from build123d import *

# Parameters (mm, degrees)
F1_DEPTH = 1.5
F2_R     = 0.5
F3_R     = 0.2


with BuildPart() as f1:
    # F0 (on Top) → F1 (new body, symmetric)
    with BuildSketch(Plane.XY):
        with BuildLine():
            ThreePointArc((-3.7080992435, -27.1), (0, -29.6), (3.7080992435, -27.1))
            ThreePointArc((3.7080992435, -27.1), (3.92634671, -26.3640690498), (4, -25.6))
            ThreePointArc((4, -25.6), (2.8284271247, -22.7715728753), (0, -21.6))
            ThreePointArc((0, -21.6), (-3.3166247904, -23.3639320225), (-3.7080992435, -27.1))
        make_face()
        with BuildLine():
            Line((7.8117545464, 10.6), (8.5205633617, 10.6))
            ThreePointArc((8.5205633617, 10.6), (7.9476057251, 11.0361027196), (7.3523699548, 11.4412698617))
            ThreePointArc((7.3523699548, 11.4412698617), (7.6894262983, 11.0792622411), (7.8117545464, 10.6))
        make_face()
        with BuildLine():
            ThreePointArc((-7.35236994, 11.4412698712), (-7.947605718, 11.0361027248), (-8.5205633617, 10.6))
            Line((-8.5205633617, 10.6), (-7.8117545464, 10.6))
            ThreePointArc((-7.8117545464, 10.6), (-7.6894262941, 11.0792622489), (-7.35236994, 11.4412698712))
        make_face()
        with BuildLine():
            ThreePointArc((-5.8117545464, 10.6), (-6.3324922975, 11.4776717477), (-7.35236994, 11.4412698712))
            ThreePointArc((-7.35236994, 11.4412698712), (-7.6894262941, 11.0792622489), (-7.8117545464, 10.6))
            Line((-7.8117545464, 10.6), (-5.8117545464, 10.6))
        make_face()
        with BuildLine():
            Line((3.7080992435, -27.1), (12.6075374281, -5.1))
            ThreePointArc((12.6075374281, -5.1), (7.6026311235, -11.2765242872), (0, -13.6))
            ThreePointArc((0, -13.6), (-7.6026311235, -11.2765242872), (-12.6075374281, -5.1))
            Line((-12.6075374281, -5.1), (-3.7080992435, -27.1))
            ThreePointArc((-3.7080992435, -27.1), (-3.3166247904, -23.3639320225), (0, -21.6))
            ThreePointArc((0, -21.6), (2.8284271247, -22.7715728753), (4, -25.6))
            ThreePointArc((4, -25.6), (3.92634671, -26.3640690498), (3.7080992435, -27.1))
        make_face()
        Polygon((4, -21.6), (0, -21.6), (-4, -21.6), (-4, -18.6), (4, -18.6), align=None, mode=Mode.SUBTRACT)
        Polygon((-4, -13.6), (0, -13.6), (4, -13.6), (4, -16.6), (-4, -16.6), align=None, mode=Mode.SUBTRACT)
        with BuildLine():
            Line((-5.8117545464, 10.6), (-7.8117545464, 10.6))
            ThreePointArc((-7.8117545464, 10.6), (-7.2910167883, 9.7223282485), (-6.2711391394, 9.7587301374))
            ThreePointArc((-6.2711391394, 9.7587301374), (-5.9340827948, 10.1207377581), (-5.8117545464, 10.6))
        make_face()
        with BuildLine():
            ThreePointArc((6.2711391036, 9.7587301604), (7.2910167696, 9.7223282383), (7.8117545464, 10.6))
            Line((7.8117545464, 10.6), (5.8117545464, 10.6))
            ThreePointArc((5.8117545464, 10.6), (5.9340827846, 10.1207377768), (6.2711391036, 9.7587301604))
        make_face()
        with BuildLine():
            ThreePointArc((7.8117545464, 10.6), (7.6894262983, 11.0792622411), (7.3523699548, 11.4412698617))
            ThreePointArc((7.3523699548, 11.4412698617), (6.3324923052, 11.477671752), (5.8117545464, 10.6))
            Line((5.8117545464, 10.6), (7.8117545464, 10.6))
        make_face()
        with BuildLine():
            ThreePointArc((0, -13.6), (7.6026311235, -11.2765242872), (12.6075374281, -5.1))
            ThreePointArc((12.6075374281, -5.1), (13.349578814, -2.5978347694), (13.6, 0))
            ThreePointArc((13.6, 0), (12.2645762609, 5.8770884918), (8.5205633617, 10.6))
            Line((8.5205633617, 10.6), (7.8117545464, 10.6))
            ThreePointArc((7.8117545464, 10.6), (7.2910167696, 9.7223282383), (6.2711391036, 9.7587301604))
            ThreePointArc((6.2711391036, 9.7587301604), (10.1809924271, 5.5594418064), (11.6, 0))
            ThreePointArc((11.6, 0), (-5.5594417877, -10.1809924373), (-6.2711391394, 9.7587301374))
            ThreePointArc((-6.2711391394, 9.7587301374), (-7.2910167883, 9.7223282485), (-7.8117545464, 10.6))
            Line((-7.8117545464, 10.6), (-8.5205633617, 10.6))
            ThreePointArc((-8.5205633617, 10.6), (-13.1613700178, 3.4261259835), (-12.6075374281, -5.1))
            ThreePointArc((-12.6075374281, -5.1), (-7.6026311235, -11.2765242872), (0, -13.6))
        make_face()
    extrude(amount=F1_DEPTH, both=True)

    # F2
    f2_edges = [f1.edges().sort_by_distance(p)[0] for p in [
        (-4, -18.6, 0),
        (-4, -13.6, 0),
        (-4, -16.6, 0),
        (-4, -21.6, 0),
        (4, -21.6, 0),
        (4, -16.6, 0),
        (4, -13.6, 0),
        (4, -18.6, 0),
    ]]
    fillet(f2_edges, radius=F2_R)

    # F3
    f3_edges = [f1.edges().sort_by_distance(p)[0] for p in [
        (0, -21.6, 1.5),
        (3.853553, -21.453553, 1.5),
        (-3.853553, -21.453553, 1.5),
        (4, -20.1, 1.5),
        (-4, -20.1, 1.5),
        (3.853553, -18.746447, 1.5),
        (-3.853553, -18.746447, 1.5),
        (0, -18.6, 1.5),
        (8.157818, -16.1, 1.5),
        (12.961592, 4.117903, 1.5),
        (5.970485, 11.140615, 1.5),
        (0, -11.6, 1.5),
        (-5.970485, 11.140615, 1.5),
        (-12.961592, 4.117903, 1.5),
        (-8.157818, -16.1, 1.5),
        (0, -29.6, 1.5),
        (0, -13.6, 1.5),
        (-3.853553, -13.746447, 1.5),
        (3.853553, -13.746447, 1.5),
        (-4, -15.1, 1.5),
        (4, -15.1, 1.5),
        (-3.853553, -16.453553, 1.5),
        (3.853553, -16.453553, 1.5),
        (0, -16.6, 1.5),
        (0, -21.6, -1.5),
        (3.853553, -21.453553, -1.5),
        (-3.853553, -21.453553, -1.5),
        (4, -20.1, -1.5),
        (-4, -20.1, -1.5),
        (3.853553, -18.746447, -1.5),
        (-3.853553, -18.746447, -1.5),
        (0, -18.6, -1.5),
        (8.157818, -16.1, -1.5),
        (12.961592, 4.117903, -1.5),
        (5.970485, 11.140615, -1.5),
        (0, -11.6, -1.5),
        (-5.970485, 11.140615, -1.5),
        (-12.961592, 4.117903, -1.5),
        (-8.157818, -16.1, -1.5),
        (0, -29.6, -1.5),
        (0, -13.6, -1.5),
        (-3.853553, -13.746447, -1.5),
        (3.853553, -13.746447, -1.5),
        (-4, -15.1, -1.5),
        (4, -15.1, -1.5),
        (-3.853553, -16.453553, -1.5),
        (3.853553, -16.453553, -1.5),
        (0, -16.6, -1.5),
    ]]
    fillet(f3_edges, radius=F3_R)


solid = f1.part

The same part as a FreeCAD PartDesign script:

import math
import FreeCAD as App
import Part
import Sketcher
from FreeCAD import Vector
Q = App.Units.Quantity


def edges_at(feature, points):
    """Names of the edges that pass closest to the given points."""
    edges = feature.Shape.Edges
    near = lambda p: min(range(len(edges)), key=lambda i: edges[i].distToShape(Part.Vertex(*p))[0])
    return sorted({f"Edge{near(p) + 1}" for p in points})


def add_polygon(sketch, points):
    """Adds a closed chain of lines whose ends are joined by coincident constraints."""
    first, n = sketch.GeometryCount, len(points)
    for a, b in zip(points, points[1:] + points[:1]):
        sketch.addGeometry(Part.LineSegment(App.Vector(*a, 0), App.Vector(*b, 0)), False)
    for i in range(n):
        sketch.addConstraint(Sketcher.Constraint("Coincident", first + i, 2, first + (i + 1) % n, 1))

doc = App.newDocument("Part")
body = doc.addObject("PartDesign::Body", "Body")

# Sketch on XY plane
sketch1 = body.newObject("Sketcher::SketchObject", "Sketch")
sketch1.AttachmentSupport = (doc.getObject("XY_Plane"), [""])
sketch1.MapMode = "FlatFace"
sketch1.addGeometry(Part.LineSegment(Vector(3.7, -27.1, 0), Vector(12.6, -5.1, 0)), False)  # 0
sketch1.addGeometry(Part.ArcOfCircle(Part.Circle(Vector(0, 0, 0), Vector(0, 0, 1), 13.6), math.radians(-22), math.radians(0)), False)  # 1
sketch1.addGeometry(Part.ArcOfCircle(Part.Circle(Vector(0, 0, 0), Vector(0, 0, 1), 13.6), math.radians(0), math.radians(51)), False)  # 2
sketch1.addGeometry(Part.ArcOfCircle(Part.Circle(Vector(0, 0, 0), Vector(0, 0, 1), 13.6), math.radians(51.21), math.radians(57.27)), False)  # 3
sketch1.addGeometry(Part.ArcOfCircle(Part.Circle(Vector(6.8, 10.6, 0), Vector(0, 0, 1), 1), math.radians(57), math.radians(180)), False)  # 4
sketch1.addGeometry(Part.ArcOfCircle(Part.Circle(Vector(6.8, 10.6, 0), Vector(0, 0, 1), 1), math.radians(180), math.radians(237)), False)  # 5
sketch1.addGeometry(Part.ArcOfCircle(Part.Circle(Vector(0, 0, 0), Vector(0, 0, 1), 11.6), math.radians(0), math.radians(57)), False)  # 6
sketch1.addGeometry(Part.ArcOfCircle(Part.Circle(Vector(0, 0, 0), Vector(0, 0, 1), 11.6), math.radians(123), math.radians(360)), False)  # 7
sketch1.addGeometry(Part.ArcOfCircle(Part.Circle(Vector(-6.8, 10.6, 0), Vector(0, 0, 1), 1), math.radians(-57), math.radians(0)), False)  # 8
sketch1.addGeometry(Part.ArcOfCircle(Part.Circle(Vector(-6.8, 10.6, 0), Vector(0, 0, 1), 1), math.radians(0), math.radians(123)), False)  # 9
sketch1.addGeometry(Part.ArcOfCircle(Part.Circle(Vector(0, 0, 0), Vector(0, 0, 1), 13.6), math.radians(122.73), math.radians(128.79)), False)  # 10
sketch1.addGeometry(Part.ArcOfCircle(Part.Circle(Vector(0, 0, 0), Vector(0, 0, 1), 13.6), math.radians(129), math.radians(202)), False)  # 11
sketch1.addGeometry(Part.LineSegment(Vector(-12.6, -5.1, 0), Vector(-3.7, -27.1, 0)), False)  # 12
sketch1.addGeometry(Part.ArcOfCircle(Part.Circle(Vector(0, -25.6, 0), Vector(0, 0, 1), 4), math.radians(-158), math.radians(-22)), False)  # 13
add_polygon(sketch1, [(4, -18.6), (4, -21.6), (-4, -21.6), (-4, -18.6)])  # lines 14-17
add_polygon(sketch1, [(-4, -13.6), (4, -13.6), (4, -16.6), (-4, -16.6)])  # lines 18-21
sketch1.addConstraint([
    Sketcher.Constraint("Tangent", 0, 2, 1, 1),
    Sketcher.Constraint("Tangent", 1, 2, 2, 1),
    Sketcher.Constraint("Tangent", 2, 2, 3, 1),
    Sketcher.Constraint("Tangent", 3, 2, 4, 1),
    Sketcher.Constraint("Tangent", 4, 2, 5, 1),
    Sketcher.Constraint("Tangent", 5, 2, 6, 2),
    Sketcher.Constraint("Tangent", 6, 1, 7, 2),
    Sketcher.Constraint("Tangent", 7, 1, 8, 1),
    Sketcher.Constraint("Tangent", 8, 2, 9, 1),
    Sketcher.Constraint("Tangent", 9, 2, 10, 1),
    Sketcher.Constraint("Tangent", 10, 2, 11, 1),
    Sketcher.Constraint("Tangent", 11, 2, 12, 1),
    Sketcher.Constraint("Tangent", 12, 2, 13, 1),
    Sketcher.Constraint("Tangent", 13, 2, 0, 1),
    Sketcher.Constraint("Vertical", 14),
    Sketcher.Constraint("Horizontal", 15),
    Sketcher.Constraint("Vertical", 16),
    Sketcher.Constraint("Horizontal", 17),
    Sketcher.Constraint("Horizontal", 18),
    Sketcher.Constraint("Vertical", 19),
    Sketcher.Constraint("Horizontal", 20),
    Sketcher.Constraint("Vertical", 21),
    Sketcher.Constraint("Coincident", 1, 3, -1, 1),
    Sketcher.Constraint("Coincident", 3, 3, -1, 1),
    Sketcher.Constraint("Coincident", 6, 3, -1, 1),
    Sketcher.Constraint("Coincident", 10, 3, -1, 1),
    Sketcher.Constraint("Equal", 4, 5),
    Sketcher.Constraint("Equal", 6, 7),
    Sketcher.Constraint("Equal", 5, 8),
    Sketcher.Constraint("Equal", 8, 9),
    Sketcher.Constraint("Equal", 10, 11),
    Sketcher.Constraint("Symmetric", 4, 2, 8, 2, -2),
    Sketcher.Constraint("PointOnObject", 13, 3, -2),
    Sketcher.Constraint("PointOnObject", 1, 2, -1),
    Sketcher.Constraint("PointOnObject", 6, 1, -1),
    Sketcher.Constraint("Horizontal", 9, 3, 2, 2),
    Sketcher.Constraint("Horizontal", 2, 2, 4, 2),
    Sketcher.Constraint("Horizontal", 8, 2, 10, 2),
    Sketcher.Constraint("Vertical", 17, 2, 18, 2),
    Sketcher.Constraint("Vertical", 16, 2, 20, 2),
    Sketcher.Constraint("Equal", 16, 19),
    Sketcher.Constraint("Radius", 4, Q("1 mm")),
    Sketcher.Constraint("Radius", 13, Q("4 mm")),
    Sketcher.Constraint("Radius", 1, Q("13.6 mm")),
    Sketcher.Constraint("DistanceX", 15, 2, 15, 1, Q("8 mm")),
    Sketcher.Constraint("DistanceY", 14, 2, 14, 1, Q("3 mm")),
    Sketcher.Constraint("DistanceX", -1, 1, 14, 2, Q("4 mm")),
    Sketcher.Constraint("DistanceY", 12, 2, 11, 2, Q("22 mm")),
    Sketcher.Constraint("DistanceY", 13, 3, 14, 2, Q("4 mm")),
    Sketcher.Constraint("DistanceY", 17, 2, 18, 2, Q("5 mm")),
    Sketcher.Constraint("DistanceY", -1, 1, 4, 3, Q("10.6 mm")),
])
pad1 = body.newObject("PartDesign::Pad", "Pad")
pad1.Profile = sketch1
pad1.Length = 3
pad1.Midplane = True
doc.recompute()

fillet = body.newObject("PartDesign::Fillet", "Fillet")
fillet.Base = (pad1, edges_at(pad1, [
    (-4, -18.6, 0),
    (-4, -13.6, 0),
    (-4, -16.6, 0),
    (-4, -21.6, 0),
    (4, -21.6, 0),
    (4, -16.6, 0),
    (4, -13.6, 0),
    (4, -18.6, 0),
]))
fillet.Radius = 0.5
doc.recompute()

fillet2 = body.newObject("PartDesign::Fillet", "Fillet001")
fillet2.Base = (fillet, edges_at(fillet, [
    (0, -21.6, 1.5),
    (3.854, -21.454, 1.5),
    (-3.854, -21.454, 1.5),
    (4, -20.1, 1.5),
    (-4, -20.1, 1.5),
    (3.854, -18.746, 1.5),
    (-3.854, -18.746, 1.5),
    (0, -18.6, 1.5),
    (8.158, -16.1, 1.5),
    (12.265, 5.877, 1.5),
    (6.332, 11.478, 1.5),
    (-5.559, -10.181, 1.5),
    (-6.332, 11.478, 1.5),
    (-13.161, 3.426, 1.5),
    (-8.158, -16.1, 1.5),
    (0, -29.6, 1.5),
    (0, -13.6, 1.5),
    (-3.854, -13.746, 1.5),
    (3.854, -13.746, 1.5),
    (-4, -15.1, 1.5),
    (4, -15.1, 1.5),
    (-3.854, -16.454, 1.5),
    (3.854, -16.454, 1.5),
    (0, -16.6, 1.5),
    (0, -21.6, -1.5),
    (3.854, -21.454, -1.5),
    (-3.854, -21.454, -1.5),
    (4, -20.1, -1.5),
    (-4, -20.1, -1.5),
    (3.854, -18.746, -1.5),
    (-3.854, -18.746, -1.5),
    (0, -18.6, -1.5),
    (8.158, -16.1, -1.5),
    (12.265, 5.877, -1.5),
    (6.332, 11.478, -1.5),
    (-5.559, -10.181, -1.5),
    (-6.332, 11.478, -1.5),
    (-13.161, 3.426, -1.5),
    (-8.158, -16.1, -1.5),
    (0, -29.6, -1.5),
    (0, -13.6, -1.5),
    (-3.854, -13.746, -1.5),
    (3.854, -13.746, -1.5),
    (-4, -15.1, -1.5),
    (4, -15.1, -1.5),
    (-3.854, -16.454, -1.5),
    (3.854, -16.454, -1.5),
    (0, -16.6, -1.5),
]))
fillet2.Radius = 0.2

doc.recompute()
